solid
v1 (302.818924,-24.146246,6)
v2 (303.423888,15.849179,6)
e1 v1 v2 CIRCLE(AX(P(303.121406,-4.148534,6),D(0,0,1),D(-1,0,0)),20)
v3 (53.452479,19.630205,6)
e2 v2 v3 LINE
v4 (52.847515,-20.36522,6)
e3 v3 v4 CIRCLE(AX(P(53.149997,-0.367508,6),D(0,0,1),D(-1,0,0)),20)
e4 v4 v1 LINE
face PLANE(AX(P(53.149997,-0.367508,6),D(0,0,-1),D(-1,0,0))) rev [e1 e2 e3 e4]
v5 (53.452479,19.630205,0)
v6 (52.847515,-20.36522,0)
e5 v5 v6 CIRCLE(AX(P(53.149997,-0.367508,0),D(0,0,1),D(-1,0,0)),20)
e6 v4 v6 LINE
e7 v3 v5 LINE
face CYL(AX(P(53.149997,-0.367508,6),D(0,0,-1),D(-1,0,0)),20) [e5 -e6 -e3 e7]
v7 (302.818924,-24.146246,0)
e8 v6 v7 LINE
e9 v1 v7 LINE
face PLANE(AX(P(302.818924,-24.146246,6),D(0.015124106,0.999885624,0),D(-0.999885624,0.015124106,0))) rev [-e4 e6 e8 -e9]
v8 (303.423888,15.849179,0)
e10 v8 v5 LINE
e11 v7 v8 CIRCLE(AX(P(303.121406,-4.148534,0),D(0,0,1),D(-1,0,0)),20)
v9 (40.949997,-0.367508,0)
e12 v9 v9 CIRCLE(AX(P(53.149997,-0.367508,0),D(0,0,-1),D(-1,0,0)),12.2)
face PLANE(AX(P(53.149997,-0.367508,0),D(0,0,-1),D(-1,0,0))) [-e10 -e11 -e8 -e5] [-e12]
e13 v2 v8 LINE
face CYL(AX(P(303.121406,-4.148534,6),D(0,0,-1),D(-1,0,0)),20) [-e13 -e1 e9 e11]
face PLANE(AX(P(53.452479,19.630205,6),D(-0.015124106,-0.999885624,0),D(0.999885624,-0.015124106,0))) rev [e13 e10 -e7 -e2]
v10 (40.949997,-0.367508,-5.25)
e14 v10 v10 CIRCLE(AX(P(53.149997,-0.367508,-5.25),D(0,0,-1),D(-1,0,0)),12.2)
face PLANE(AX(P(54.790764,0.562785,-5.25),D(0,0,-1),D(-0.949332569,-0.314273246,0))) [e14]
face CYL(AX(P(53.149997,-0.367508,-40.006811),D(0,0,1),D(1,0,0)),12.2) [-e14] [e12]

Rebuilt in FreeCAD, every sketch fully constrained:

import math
import FreeCAD as App
import Part
import Sketcher

V = App.Vector
Q = App.Units.Quantity

doc = App.newDocument("Part")
body = doc.addObject("PartDesign::Body", "Body")

# Sketch on XY plane
sketch1 = body.newObject("Sketcher::SketchObject", "Sketch")
sketch1.AttachmentSupport = (doc.getObject("XY_Plane"), [""])
sketch1.MapMode = "FlatFace"
sketch1.addGeometry([
    Part.LineSegment(V(303.423888, 15.849179, 0), V(53.452479, 19.630205, 0)),
    Part.ArcOfCircle(Part.Circle(V(53.149997, -0.367508, 0), V(0, 0, 1), 20), math.radians(89.13342), math.radians(269.13342)),
    Part.LineSegment(V(52.847515, -20.36522, 0), V(302.818924, -24.146246, 0)),
    Part.ArcOfCircle(Part.Circle(V(303.121406, -4.148534, 0), V(0, 0, 1), 20), math.radians(-90.86658), math.radians(89.13342)),
], False)
sketch1.addConstraint([
    Sketcher.Constraint("Tangent", 0, 2, 1, 1),
    Sketcher.Constraint("Tangent", 1, 2, 2, 1),
    Sketcher.Constraint("Tangent", 2, 2, 3, 1),
    Sketcher.Constraint("Tangent", 3, 2, 0, 1),
    Sketcher.Constraint("Equal", 1, 3),
    Sketcher.Constraint("Radius", 1, Q("20 mm")),
    Sketcher.Constraint("DistanceY", 1, 2, 3, 2, Q("36.214399 mm")),
    Sketcher.Constraint("DistanceX", -1, 1, 0, 2, Q("53.452479 mm")),
    Sketcher.Constraint("DistanceY", 1, 2, -1, 1, Q("20.36522 mm")),
    Sketcher.Constraint("DistanceX", -1, 1, 3, 2, Q("303.423888 mm")),
])
pad1 = body.newObject("PartDesign::Pad", "Pad")
pad1.Profile = sketch1
pad1.Length = 6

# Sketch on XY plane
sketch2 = body.newObject("Sketcher::SketchObject", "Sketch001")
sketch2.AttachmentSupport = (doc.getObject("XY_Plane"), [""])
sketch2.MapMode = "FlatFace"
sketch2.addGeometry(Part.Circle(V(53.149997, -0.367508, 0), V(0, 0, 1), 12.2), False)
sketch2.addConstraint([
    Sketcher.Constraint("Diameter", 0, Q("24.4 mm")),
    Sketcher.Constraint("DistanceX", -1, 1, 0, 3, Q("53.149997 mm")),
    Sketcher.Constraint("DistanceY", 0, 3, -1, 1, Q("0.367508 mm")),
])
pad2 = body.newObject("PartDesign::Pad", "Pad001")
pad2.Profile = sketch2
pad2.Length = 5.25
pad2.Reversed = True

doc.recompute()
